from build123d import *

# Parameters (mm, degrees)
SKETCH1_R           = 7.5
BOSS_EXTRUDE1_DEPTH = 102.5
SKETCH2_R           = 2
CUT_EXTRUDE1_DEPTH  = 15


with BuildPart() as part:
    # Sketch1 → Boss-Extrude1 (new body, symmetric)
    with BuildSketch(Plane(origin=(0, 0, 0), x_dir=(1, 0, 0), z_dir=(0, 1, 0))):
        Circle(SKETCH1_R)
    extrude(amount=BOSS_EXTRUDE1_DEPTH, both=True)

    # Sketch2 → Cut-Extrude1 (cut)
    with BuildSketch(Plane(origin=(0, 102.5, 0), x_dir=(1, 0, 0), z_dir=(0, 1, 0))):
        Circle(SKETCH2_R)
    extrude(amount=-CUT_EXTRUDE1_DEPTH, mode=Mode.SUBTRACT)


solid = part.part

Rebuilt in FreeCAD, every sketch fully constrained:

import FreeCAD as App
import Part
import Sketcher

doc = App.newDocument("Part")
params = doc.addObject("Spreadsheet::Sheet", "Params")
for row, (alias, value) in enumerate([
    ("sketch1_diameter", "15 mm"),
    ("pad1_length", "205 mm"),
    ("sketch2_diameter", "4 mm"),
    ("pocket1_length", "15 mm"),
], start=1):
    params.set(f"A{row}", alias)
    params.set(f"B{row}", "=" + value)
    params.setAlias(f"B{row}", alias)

body = doc.addObject("PartDesign::Body", "Body")

sketch1 = body.newObject("Sketcher::SketchObject", "Sketch")
sketch1.AttachmentSupport = (doc.getObject("XZ_Plane"), [""])
sketch1.MapMode = "FlatFace"
sketch1.addGeometry(Part.Circle(App.Vector(0, 0, 0), App.Vector(0, 0, 1), 8), False)
sketch1.addConstraint(Sketcher.Constraint("Coincident", 0, 3, -1, 1))
sketch1.addConstraint(Sketcher.Constraint("Diameter", 0, 15.0))
sketch1.setExpression("Constraints[1]", "Params.sketch1_diameter")
pad1 = body.newObject("PartDesign::Pad", "Pad")
pad1.Profile = sketch1
pad1.setExpression("Length", "Params.pad1_length")
pad1.Midplane = True

sketch2 = body.newObject("Sketcher::SketchObject", "Sketch001")
sketch2.AttachmentSupport = (doc.getObject("XZ_Plane"), [""])
sketch2.MapMode = "FlatFace"
sketch2.AttachmentOffset = App.Placement(App.Vector(0, 0, -102.5), App.Rotation())
sketch2.addGeometry(Part.Circle(App.Vector(0, 0, 0), App.Vector(0, 0, 1), 2), False)
sketch2.addConstraint(Sketcher.Constraint("Coincident", 0, 3, -1, 1))
sketch2.addConstraint(Sketcher.Constraint("Diameter", 0, 4.0))
sketch2.setExpression("Constraints[1]", "Params.sketch2_diameter")
pocket1 = body.newObject("PartDesign::Pocket", "Pocket")
pocket1.Profile = sketch2
pocket1.setExpression("Length", "Params.pocket1_length")
pocket1.Reversed = True

doc.recompute()
